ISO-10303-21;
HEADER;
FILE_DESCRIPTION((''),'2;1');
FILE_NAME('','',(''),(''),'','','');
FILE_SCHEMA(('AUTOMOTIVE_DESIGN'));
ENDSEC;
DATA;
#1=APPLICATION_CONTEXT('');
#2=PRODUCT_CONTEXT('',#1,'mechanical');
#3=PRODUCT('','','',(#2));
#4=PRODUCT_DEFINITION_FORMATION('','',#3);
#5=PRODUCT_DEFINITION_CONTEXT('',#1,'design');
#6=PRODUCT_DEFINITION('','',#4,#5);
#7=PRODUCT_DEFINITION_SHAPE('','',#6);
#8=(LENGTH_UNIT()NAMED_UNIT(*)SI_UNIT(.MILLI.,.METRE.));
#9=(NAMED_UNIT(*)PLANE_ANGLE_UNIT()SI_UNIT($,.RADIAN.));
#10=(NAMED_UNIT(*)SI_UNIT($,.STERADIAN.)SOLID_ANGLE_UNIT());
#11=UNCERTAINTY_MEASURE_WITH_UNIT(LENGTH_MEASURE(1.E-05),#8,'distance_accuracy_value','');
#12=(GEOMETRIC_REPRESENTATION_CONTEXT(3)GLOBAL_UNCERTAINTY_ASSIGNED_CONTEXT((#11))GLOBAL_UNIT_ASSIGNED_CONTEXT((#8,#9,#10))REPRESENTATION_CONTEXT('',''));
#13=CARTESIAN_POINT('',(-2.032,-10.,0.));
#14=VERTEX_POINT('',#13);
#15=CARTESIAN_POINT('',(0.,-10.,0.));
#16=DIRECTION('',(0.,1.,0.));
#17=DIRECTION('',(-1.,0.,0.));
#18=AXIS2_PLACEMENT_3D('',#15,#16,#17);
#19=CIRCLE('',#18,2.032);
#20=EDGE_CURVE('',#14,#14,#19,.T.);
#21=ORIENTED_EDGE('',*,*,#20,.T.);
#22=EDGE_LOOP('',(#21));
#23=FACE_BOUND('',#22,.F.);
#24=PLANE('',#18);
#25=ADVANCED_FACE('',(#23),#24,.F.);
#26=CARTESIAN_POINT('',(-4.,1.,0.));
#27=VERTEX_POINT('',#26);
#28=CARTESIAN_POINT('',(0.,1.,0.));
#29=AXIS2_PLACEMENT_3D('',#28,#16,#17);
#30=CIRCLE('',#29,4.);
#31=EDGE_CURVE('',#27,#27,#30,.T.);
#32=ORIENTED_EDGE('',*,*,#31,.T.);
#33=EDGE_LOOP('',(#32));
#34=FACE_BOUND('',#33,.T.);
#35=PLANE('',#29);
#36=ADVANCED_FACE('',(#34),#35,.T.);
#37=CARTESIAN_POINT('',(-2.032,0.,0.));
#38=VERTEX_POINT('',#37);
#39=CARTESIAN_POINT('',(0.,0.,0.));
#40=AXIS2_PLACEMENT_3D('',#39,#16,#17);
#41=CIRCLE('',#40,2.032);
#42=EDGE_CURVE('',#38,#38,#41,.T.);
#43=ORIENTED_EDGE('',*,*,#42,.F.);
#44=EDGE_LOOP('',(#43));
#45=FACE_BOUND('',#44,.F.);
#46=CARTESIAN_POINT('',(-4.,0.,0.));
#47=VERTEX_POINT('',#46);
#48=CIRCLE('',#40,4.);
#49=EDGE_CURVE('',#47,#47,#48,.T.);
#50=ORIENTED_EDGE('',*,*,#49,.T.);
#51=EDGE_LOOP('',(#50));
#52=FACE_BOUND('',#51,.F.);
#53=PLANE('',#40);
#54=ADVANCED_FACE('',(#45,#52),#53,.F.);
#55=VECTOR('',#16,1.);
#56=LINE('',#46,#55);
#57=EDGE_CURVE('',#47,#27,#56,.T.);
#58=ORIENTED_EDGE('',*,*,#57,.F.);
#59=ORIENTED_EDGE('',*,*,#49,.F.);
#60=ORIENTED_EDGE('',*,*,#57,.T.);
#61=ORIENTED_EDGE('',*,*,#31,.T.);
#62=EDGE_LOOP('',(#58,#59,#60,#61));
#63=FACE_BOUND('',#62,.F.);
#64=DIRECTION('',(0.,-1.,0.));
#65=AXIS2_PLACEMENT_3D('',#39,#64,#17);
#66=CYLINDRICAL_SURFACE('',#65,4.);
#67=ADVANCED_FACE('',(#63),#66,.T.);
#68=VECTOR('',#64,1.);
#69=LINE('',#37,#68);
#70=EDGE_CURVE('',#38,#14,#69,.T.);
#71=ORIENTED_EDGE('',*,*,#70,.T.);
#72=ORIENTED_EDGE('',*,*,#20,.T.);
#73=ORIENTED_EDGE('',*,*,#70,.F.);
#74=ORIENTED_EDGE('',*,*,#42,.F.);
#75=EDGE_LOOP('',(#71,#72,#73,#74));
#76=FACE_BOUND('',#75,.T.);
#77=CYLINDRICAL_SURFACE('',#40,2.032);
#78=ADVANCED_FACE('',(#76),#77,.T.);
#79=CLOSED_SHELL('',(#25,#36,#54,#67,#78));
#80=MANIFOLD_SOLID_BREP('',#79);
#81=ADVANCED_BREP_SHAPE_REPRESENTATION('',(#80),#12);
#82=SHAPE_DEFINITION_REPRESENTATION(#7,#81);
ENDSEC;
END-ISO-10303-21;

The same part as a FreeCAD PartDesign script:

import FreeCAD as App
import Part
import Sketcher
from FreeCAD import Vector
Q = App.Units.Quantity

doc = App.newDocument("Part")
body = doc.addObject("PartDesign::Body", "Body")

# Sketch on XZ plane
sketch1 = body.newObject("Sketcher::SketchObject", "Sketch")
sketch1.AttachmentSupport = (doc.getObject("XZ_Plane"), [""])
sketch1.MapMode = "FlatFace"
sketch1.addGeometry(Part.Circle(Vector(0, 0, 0), Vector(0, 0, 1), 2), False)
sketch1.addConstraint(Sketcher.Constraint("Coincident", 0, 3, -1, 1))
sketch1.addConstraint(Sketcher.Constraint("Diameter", 0, Q("4.064 mm")))
pad1 = body.newObject("PartDesign::Pad", "Pad")
pad1.Profile = sketch1
pad1.Length = 10

# Sketch on XZ plane
sketch2 = body.newObject("Sketcher::SketchObject", "Sketch001")
sketch2.AttachmentSupport = (doc.getObject("XZ_Plane"), [""])
sketch2.MapMode = "FlatFace"
sketch2.addGeometry(Part.Circle(Vector(0, 0, 0), Vector(0, 0, 1), 4), False)
sketch2.addConstraint(Sketcher.Constraint("Coincident", 0, 3, -1, 1))
sketch2.addConstraint(Sketcher.Constraint("Diameter", 0, Q("8 mm")))
pad2 = body.newObject("PartDesign::Pad", "Pad001")
pad2.Profile = sketch2
pad2.Length = 1
pad2.Reversed = True

doc.recompute()
